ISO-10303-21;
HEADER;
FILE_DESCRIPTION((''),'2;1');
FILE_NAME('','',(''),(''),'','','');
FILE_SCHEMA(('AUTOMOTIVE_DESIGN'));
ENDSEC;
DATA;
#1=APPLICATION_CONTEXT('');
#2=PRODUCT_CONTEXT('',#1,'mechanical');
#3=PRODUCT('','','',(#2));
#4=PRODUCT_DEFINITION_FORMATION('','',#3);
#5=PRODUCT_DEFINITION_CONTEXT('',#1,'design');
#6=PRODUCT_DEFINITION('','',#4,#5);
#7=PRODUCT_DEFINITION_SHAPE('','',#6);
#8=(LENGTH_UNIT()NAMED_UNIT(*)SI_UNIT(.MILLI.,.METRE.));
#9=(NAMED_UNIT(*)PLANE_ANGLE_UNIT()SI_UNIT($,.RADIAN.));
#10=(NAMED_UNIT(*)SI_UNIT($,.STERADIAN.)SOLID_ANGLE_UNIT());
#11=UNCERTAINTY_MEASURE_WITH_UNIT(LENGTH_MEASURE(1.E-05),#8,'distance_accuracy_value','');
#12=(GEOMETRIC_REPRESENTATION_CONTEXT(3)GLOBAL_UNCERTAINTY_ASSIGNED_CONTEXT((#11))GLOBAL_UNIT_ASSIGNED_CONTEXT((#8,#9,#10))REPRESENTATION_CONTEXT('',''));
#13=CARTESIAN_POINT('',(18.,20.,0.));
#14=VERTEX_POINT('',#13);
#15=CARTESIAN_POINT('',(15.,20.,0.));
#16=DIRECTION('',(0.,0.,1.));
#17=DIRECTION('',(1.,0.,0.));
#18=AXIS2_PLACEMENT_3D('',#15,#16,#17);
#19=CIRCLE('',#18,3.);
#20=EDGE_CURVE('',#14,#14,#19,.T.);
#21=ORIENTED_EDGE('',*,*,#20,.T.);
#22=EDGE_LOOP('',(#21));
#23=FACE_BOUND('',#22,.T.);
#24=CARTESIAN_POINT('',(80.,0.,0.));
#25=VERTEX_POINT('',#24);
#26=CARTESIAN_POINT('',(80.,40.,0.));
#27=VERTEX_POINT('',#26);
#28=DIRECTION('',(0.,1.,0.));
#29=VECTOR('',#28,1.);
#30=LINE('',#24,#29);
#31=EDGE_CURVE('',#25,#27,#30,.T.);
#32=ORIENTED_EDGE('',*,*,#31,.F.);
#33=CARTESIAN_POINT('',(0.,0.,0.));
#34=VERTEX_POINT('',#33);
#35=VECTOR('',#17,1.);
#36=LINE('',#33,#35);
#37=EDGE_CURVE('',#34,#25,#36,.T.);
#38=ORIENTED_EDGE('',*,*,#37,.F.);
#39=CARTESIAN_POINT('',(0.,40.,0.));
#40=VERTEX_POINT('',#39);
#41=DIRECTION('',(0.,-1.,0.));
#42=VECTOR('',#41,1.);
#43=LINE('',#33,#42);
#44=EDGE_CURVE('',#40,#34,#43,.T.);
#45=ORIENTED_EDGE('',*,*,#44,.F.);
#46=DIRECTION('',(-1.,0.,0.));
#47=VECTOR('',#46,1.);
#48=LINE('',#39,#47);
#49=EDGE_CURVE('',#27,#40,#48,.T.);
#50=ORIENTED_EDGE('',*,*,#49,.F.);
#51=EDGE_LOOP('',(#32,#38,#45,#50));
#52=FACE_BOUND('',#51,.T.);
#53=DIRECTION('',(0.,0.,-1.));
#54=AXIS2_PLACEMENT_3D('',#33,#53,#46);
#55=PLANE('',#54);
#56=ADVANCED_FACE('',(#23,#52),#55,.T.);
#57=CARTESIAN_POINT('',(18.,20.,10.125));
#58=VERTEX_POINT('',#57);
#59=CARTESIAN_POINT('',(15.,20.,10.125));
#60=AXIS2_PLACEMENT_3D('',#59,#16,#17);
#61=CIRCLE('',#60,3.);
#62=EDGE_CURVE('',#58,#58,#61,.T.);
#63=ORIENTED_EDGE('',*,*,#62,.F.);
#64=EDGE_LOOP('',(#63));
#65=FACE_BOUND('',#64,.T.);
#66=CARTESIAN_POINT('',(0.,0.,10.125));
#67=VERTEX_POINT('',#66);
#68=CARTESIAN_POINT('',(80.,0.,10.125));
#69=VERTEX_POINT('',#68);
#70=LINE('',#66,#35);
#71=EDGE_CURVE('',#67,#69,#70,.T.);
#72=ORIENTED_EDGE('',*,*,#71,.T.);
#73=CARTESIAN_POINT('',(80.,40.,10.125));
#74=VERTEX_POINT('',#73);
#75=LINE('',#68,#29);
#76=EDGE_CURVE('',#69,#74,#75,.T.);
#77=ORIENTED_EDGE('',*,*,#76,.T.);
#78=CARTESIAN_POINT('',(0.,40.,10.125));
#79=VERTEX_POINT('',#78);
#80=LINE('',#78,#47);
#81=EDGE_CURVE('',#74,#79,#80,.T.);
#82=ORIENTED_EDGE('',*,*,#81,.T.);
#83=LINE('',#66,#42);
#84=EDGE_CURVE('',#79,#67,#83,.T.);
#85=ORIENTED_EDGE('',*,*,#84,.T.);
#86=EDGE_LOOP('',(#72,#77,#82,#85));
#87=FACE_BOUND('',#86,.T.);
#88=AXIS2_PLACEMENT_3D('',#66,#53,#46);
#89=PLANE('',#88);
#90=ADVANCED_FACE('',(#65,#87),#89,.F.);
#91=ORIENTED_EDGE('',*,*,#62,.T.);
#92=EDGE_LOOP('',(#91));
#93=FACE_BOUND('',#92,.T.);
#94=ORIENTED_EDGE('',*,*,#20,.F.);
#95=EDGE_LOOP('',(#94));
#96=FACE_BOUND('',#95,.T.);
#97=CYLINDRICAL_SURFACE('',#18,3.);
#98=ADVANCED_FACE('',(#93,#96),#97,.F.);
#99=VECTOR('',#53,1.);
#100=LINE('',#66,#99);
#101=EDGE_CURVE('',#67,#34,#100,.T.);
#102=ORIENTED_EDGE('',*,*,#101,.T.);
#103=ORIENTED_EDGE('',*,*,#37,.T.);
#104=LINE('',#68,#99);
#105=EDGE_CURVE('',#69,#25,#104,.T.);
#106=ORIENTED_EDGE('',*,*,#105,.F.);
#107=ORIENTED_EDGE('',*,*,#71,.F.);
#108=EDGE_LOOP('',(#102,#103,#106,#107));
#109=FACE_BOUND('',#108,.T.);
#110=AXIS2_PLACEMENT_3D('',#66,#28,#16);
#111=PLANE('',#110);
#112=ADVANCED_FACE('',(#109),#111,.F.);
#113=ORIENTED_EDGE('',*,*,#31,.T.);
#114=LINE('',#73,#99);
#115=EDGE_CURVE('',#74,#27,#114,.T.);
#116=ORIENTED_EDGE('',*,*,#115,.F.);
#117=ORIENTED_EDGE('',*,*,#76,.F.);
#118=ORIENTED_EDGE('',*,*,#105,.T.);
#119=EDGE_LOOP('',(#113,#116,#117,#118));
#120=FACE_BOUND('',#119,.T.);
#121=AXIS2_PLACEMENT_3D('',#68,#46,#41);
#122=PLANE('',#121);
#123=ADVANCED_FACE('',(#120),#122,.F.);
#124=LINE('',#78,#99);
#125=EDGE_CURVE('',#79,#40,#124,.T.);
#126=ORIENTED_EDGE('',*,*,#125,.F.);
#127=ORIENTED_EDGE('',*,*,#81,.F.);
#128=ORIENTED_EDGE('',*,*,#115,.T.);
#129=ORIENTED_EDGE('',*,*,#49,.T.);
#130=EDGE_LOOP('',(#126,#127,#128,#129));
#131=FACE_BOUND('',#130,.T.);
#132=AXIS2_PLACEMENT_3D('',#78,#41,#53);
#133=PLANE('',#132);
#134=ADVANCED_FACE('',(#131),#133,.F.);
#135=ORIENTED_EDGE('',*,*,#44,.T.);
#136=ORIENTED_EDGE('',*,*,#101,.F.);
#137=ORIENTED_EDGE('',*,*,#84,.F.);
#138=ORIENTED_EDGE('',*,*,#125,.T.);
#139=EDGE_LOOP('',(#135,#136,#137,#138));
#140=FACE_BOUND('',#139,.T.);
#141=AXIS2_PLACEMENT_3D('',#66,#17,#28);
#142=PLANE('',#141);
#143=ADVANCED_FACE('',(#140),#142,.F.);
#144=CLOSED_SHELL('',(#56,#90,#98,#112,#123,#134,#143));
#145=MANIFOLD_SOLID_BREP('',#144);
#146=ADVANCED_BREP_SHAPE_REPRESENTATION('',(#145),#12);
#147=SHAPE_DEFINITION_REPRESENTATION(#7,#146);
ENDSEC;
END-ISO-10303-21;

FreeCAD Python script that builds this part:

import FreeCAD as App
import Part
import Sketcher
from FreeCAD import Vector

doc = App.newDocument("Part")
body = doc.addObject("PartDesign::Body", "Body")

# Sketch on XY plane
sketch1 = body.newObject("Sketcher::SketchObject", "Sketch")
sketch1.AttachmentSupport = (doc.getObject("XY_Plane"), [""])
sketch1.MapMode = "FlatFace"
sketch1.addGeometry(Part.LineSegment(Vector(0, 40, 0), Vector(0, 0, 0)), False)
sketch1.addGeometry(Part.LineSegment(Vector(0, 0, 0), Vector(80, 0, 0)), False)
sketch1.addGeometry(Part.LineSegment(Vector(80, 0, 0), Vector(80, 40, 0)), False)
sketch1.addGeometry(Part.LineSegment(Vector(80, 40, 0), Vector(0, 40, 0)), False)
sketch1.addConstraint(Sketcher.Constraint("Coincident", 0, 2, 1, 1))
sketch1.addConstraint(Sketcher.Constraint("Coincident", 1, 2, 2, 1))
sketch1.addConstraint(Sketcher.Constraint("Coincident", 2, 2, 3, 1))
sketch1.addConstraint(Sketcher.Constraint("Coincident", 3, 2, 0, 1))
sketch1.addConstraint(Sketcher.Constraint("Vertical", 0))
sketch1.addConstraint(Sketcher.Constraint("Horizontal", 1))
sketch1.addConstraint(Sketcher.Constraint("Vertical", 2))
sketch1.addConstraint(Sketcher.Constraint("Horizontal", 3))
sketch1.addConstraint(Sketcher.Constraint("Coincident", 0, 2, -1, 1))
sketch1.addConstraint(Sketcher.Constraint("DistanceX", 1, 1, 1, 2, 80.0))
sketch1.addConstraint(Sketcher.Constraint("DistanceY", 0, 2, 0, 1, 40.0))
pad1 = body.newObject("PartDesign::Pad", "Pad")
pad1.Profile = sketch1
pad1.Length = 10.125

# Sketch on XY plane
sketch2 = body.newObject("Sketcher::SketchObject", "Sketch001")
sketch2.AttachmentSupport = (doc.getObject("XY_Plane"), [""])
sketch2.MapMode = "FlatFace"
sketch2.AttachmentOffset = App.Placement(Vector(0, 0, 10.125), App.Rotation())
sketch2.addGeometry(Part.Circle(Vector(15, 20, 0), Vector(0, 0, 1), 3), False)
sketch2.addConstraint(Sketcher.Constraint("Diameter", 0, 6.0))
sketch2.addConstraint(Sketcher.Constraint("DistanceX", -1, 1, 0, 3, 15.0))
sketch2.addConstraint(Sketcher.Constraint("DistanceY", -1, 1, 0, 3, 20.0))
pocket1 = body.newObject("PartDesign::Pocket", "Pocket")
pocket1.Profile = sketch2
pocket1.Length = 10.125

doc.recompute()
